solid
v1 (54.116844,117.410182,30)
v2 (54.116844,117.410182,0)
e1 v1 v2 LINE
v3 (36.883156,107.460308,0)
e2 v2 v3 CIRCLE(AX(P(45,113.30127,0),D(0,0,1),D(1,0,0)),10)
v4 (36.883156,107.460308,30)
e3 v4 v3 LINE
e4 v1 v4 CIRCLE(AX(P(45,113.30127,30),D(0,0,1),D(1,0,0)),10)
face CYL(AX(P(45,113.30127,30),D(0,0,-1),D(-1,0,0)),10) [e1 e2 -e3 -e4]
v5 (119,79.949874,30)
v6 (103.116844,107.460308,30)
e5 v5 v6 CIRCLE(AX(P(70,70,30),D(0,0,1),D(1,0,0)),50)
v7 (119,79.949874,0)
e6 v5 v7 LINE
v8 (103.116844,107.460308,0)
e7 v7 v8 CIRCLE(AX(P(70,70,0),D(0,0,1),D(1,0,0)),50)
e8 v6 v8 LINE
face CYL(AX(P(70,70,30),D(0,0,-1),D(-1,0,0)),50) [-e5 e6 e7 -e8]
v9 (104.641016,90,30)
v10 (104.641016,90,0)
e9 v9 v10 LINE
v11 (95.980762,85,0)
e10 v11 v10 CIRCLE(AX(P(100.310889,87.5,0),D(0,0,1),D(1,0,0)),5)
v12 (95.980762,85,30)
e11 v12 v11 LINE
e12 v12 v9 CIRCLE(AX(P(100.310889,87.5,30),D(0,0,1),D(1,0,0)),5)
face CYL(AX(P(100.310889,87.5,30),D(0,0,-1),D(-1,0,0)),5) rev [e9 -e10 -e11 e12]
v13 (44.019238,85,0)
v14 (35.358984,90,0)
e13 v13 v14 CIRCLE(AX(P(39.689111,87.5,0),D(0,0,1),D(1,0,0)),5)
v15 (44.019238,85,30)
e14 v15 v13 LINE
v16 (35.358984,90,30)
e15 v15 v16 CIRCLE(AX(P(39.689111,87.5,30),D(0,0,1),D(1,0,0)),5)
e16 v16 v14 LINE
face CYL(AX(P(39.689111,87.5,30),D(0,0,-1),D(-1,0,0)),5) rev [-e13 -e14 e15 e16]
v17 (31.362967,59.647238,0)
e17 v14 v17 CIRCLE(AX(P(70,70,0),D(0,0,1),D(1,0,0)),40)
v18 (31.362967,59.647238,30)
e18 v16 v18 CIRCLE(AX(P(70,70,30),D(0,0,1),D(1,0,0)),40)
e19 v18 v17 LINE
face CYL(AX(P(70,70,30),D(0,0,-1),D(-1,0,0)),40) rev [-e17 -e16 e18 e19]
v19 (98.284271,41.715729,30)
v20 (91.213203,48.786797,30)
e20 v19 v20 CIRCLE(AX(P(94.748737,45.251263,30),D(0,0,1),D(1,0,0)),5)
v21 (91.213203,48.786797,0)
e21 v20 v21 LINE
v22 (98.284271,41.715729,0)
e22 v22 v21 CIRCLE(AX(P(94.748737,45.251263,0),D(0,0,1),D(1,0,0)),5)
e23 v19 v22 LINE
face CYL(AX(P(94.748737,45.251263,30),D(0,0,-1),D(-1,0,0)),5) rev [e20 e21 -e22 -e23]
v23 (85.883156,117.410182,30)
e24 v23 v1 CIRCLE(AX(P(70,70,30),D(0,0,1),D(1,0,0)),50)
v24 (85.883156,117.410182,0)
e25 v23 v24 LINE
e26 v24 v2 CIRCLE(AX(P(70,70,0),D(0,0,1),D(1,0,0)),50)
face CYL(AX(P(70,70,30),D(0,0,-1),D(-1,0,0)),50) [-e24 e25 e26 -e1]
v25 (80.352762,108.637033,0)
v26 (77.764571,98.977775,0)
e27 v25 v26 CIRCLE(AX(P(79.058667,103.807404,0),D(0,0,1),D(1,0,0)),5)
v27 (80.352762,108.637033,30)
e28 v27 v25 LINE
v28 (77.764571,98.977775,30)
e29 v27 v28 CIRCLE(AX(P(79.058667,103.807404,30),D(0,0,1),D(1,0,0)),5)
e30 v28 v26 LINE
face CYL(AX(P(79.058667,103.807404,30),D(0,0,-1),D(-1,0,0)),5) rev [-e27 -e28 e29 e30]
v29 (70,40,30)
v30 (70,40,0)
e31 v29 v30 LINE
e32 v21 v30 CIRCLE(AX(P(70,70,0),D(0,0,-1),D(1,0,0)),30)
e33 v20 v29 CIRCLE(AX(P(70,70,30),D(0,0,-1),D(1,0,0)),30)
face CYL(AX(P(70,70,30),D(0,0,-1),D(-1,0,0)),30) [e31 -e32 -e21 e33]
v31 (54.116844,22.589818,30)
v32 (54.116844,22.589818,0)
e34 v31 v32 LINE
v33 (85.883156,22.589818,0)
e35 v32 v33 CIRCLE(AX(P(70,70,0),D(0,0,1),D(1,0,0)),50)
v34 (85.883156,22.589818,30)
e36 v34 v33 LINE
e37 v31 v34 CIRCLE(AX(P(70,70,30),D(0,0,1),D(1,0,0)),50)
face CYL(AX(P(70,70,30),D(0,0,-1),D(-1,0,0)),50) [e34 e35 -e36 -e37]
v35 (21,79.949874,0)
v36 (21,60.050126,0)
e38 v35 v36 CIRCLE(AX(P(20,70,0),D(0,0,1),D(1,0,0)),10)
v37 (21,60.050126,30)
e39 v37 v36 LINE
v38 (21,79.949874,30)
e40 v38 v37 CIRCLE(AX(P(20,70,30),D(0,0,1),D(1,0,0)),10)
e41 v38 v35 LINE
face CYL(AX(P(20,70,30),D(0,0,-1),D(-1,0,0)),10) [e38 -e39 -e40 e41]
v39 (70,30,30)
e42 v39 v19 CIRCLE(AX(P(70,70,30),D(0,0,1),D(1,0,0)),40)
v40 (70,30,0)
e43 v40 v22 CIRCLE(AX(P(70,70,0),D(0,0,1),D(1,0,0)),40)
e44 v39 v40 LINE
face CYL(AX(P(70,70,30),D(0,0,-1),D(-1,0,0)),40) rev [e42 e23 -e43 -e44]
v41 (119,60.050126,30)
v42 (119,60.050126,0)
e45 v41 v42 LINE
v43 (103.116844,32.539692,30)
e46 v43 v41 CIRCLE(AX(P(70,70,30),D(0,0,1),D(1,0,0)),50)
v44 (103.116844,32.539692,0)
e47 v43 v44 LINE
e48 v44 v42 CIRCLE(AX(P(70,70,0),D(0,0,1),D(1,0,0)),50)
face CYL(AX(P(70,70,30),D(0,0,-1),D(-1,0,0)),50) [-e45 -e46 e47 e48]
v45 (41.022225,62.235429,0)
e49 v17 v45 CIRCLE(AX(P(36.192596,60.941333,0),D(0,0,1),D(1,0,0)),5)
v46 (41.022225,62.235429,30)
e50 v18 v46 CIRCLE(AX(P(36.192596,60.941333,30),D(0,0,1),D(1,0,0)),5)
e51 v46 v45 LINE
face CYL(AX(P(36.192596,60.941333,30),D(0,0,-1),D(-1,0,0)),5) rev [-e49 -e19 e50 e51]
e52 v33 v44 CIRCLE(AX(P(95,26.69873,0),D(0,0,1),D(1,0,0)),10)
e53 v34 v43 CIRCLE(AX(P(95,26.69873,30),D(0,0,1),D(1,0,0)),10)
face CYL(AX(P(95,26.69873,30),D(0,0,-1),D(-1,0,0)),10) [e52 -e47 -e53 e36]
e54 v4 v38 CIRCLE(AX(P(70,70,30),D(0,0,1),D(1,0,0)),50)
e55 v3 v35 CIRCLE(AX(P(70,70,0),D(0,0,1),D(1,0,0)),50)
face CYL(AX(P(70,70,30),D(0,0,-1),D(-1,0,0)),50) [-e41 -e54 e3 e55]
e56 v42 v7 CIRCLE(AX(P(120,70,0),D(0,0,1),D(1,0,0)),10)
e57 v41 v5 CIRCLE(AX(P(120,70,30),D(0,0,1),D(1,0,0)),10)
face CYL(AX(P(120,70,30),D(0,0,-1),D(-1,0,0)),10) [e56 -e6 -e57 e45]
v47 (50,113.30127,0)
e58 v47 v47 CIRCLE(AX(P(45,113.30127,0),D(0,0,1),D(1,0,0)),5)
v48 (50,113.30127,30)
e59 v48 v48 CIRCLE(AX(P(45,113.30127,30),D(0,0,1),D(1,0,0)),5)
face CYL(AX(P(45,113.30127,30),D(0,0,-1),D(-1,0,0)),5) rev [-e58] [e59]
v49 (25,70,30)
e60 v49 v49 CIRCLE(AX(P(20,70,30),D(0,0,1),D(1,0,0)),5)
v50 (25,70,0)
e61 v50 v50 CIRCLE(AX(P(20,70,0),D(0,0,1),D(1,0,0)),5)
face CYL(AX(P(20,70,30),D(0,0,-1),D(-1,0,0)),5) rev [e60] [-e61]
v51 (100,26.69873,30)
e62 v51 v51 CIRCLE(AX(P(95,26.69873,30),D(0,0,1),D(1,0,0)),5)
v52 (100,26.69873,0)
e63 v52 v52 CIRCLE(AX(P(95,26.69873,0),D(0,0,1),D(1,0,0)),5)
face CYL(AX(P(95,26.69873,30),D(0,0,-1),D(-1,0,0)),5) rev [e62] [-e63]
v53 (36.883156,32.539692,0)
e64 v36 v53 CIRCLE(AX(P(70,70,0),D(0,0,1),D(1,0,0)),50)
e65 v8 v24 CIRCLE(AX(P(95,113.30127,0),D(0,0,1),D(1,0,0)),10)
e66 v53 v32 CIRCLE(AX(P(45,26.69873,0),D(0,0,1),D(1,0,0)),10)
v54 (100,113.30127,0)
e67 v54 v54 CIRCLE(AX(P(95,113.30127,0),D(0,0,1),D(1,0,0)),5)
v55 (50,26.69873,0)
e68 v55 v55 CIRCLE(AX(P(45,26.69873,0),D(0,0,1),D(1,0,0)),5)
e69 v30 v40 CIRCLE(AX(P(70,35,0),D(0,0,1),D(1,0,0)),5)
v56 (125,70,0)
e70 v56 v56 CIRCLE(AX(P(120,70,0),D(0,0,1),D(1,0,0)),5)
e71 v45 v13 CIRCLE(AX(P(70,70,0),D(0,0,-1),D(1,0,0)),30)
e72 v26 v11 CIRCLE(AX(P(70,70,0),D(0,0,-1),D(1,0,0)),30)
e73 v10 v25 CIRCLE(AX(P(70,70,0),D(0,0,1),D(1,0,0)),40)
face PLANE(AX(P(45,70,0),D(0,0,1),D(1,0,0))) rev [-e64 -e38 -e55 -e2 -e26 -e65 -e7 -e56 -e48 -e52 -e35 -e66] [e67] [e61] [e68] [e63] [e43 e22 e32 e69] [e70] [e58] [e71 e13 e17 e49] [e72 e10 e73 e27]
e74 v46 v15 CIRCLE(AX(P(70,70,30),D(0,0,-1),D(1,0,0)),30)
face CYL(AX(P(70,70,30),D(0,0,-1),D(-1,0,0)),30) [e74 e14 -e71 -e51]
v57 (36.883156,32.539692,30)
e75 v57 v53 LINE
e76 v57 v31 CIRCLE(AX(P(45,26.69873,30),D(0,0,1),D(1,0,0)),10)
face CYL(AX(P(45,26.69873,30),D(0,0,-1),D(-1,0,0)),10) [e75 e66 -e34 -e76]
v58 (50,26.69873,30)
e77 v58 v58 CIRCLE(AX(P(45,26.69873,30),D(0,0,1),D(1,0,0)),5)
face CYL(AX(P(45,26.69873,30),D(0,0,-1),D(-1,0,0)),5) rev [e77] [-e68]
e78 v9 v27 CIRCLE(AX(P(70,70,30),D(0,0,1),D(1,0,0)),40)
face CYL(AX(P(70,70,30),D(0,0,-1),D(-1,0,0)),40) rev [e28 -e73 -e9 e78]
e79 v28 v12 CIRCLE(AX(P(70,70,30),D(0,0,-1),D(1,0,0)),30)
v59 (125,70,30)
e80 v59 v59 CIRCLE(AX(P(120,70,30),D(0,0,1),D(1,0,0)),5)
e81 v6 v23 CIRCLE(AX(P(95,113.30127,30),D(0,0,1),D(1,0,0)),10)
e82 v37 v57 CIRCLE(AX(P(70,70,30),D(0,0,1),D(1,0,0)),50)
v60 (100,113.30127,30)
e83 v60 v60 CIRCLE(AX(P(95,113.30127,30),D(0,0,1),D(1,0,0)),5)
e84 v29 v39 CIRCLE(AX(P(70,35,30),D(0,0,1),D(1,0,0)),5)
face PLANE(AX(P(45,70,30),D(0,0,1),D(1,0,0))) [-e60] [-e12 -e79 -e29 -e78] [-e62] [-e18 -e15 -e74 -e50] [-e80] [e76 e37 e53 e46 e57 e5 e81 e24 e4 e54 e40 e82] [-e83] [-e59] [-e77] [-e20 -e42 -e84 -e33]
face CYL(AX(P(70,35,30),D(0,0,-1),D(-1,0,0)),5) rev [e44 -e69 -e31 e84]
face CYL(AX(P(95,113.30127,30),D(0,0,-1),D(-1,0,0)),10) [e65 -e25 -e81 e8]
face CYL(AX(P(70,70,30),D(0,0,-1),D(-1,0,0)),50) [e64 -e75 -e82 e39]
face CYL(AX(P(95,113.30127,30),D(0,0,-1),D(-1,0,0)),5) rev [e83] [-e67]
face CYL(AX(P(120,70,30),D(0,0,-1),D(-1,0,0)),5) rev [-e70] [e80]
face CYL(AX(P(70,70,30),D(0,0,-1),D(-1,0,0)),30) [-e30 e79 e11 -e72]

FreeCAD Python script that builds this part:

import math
import FreeCAD as App
import Part
import Sketcher
from FreeCAD import Vector

doc = App.newDocument("Part")
body = doc.addObject("PartDesign::Body", "Body")

# Sketch on XY plane
sketch1 = body.newObject("Sketcher::SketchObject", "Sketch")
sketch1.AttachmentSupport = (doc.getObject("XY_Plane"), [""])
sketch1.MapMode = "FlatFace"
sketch1.addGeometry(Part.ArcOfCircle(Part.Circle(Vector(70, 70, 0), Vector(0, 0, 1), 50), math.radians(-169), math.radians(-131)), False)
sketch1.addGeometry(Part.ArcOfCircle(Part.Circle(Vector(45, 26.7, 0), Vector(0, 0, 1), 10), math.radians(144), math.radians(336)), False)
sketch1.addGeometry(Part.ArcOfCircle(Part.Circle(Vector(70, 70, 0), Vector(0, 0, 1), 50), math.radians(-109), math.radians(-71)), False)
sketch1.addGeometry(Part.ArcOfCircle(Part.Circle(Vector(95, 26.7, 0), Vector(0, 0, 1), 10), math.radians(-156), math.radians(36)), False)
sketch1.addGeometry(Part.ArcOfCircle(Part.Circle(Vector(70, 70, 0), Vector(0, 0, 1), 50), math.radians(-49), math.radians(-11)), False)
sketch1.addGeometry(Part.ArcOfCircle(Part.Circle(Vector(120, 70, 0), Vector(0, 0, 1), 10), math.radians(-96), math.radians(96)), False)
sketch1.addGeometry(Part.ArcOfCircle(Part.Circle(Vector(70, 70, 0), Vector(0, 0, 1), 50), math.radians(11), math.radians(49)), False)
sketch1.addGeometry(Part.ArcOfCircle(Part.Circle(Vector(95, 113.3, 0), Vector(0, 0, 1), 10), math.radians(-36), math.radians(156)), False)
sketch1.addGeometry(Part.ArcOfCircle(Part.Circle(Vector(70, 70, 0), Vector(0, 0, 1), 50), math.radians(71), math.radians(109)), False)
sketch1.addGeometry(Part.ArcOfCircle(Part.Circle(Vector(45, 113.3, 0), Vector(0, 0, 1), 10), math.radians(24), math.radians(216)), False)
sketch1.addGeometry(Part.ArcOfCircle(Part.Circle(Vector(70, 70, 0), Vector(0, 0, 1), 50), math.radians(131), math.radians(169)), False)
sketch1.addGeometry(Part.ArcOfCircle(Part.Circle(Vector(20, 70, 0), Vector(0, 0, 1), 10), math.radians(84), math.radians(276)), False)
sketch1.addGeometry(Part.Circle(Vector(45, 26.7, 0), Vector(0, 0, 1), 5), False)
sketch1.addGeometry(Part.Circle(Vector(95, 26.7, 0), Vector(0, 0, 1), 5), False)
sketch1.addGeometry(Part.ArcOfCircle(Part.Circle(Vector(70, 70, 0), Vector(0, 0, 1), 40), math.radians(-90), math.radians(-45)), False)
sketch1.addGeometry(Part.ArcOfCircle(Part.Circle(Vector(70, 35, 0), Vector(0, 0, 1), 5), math.radians(90), math.radians(270)), False)
sketch1.addGeometry(Part.ArcOfCircle(Part.Circle(Vector(70, 70, 0), Vector(0, 0, 1), 30), math.radians(-90), math.radians(-45)), False)
sketch1.addGeometry(Part.ArcOfCircle(Part.Circle(Vector(94.7, 45.3, 0), Vector(0, 0, 1), 5), math.radians(-45), math.radians(135)), False)
sketch1.addGeometry(Part.Circle(Vector(20, 70, 0), Vector(0, 0, 1), 5), False)
sketch1.addGeometry(Part.ArcOfCircle(Part.Circle(Vector(70, 70, 0), Vector(0, 0, 1), 40), math.radians(150), math.radians(195)), False)
sketch1.addGeometry(Part.ArcOfCircle(Part.Circle(Vector(39.7, 87.5, 0), Vector(0, 0, 1), 5), math.radians(-30), math.radians(150)), False)
sketch1.addGeometry(Part.ArcOfCircle(Part.Circle(Vector(70, 70, 0), Vector(0, 0, 1), 30), math.radians(150), math.radians(195)), False)
sketch1.addGeometry(Part.ArcOfCircle(Part.Circle(Vector(36.2, 60.9, 0), Vector(0, 0, 1), 5), math.radians(-165), math.radians(15)), False)
sketch1.addGeometry(Part.Circle(Vector(45, 113.3, 0), Vector(0, 0, 1), 5), False)
sketch1.addGeometry(Part.Circle(Vector(120, 70, 0), Vector(0, 0, 1), 5), False)
sketch1.addGeometry(Part.ArcOfCircle(Part.Circle(Vector(70, 70, 0), Vector(0, 0, 1), 40), math.radians(30), math.radians(75)), False)
sketch1.addGeometry(Part.ArcOfCircle(Part.Circle(Vector(100.3, 87.5, 0), Vector(0, 0, 1), 5), math.radians(-150), math.radians(30)), False)
sketch1.addGeometry(Part.ArcOfCircle(Part.Circle(Vector(70, 70, 0), Vector(0, 0, 1), 30), math.radians(30), math.radians(75)), False)
sketch1.addGeometry(Part.ArcOfCircle(Part.Circle(Vector(79.1, 103.8, 0), Vector(0, 0, 1), 5), math.radians(75), math.radians(255)), False)
sketch1.addGeometry(Part.Circle(Vector(95, 113.3, 0), Vector(0, 0, 1), 5), False)
sketch1.addConstraint(Sketcher.Constraint("Coincident", 0, 2, 1, 1))
sketch1.addConstraint(Sketcher.Constraint("Coincident", 1, 2, 2, 1))
sketch1.addConstraint(Sketcher.Constraint("Coincident", 2, 2, 3, 1))
sketch1.addConstraint(Sketcher.Constraint("Coincident", 3, 2, 4, 1))
sketch1.addConstraint(Sketcher.Constraint("Coincident", 4, 2, 5, 1))
sketch1.addConstraint(Sketcher.Constraint("Coincident", 5, 2, 6, 1))
sketch1.addConstraint(Sketcher.Constraint("Coincident", 6, 2, 7, 1))
sketch1.addConstraint(Sketcher.Constraint("Coincident", 7, 2, 8, 1))
sketch1.addConstraint(Sketcher.Constraint("Coincident", 8, 2, 9, 1))
sketch1.addConstraint(Sketcher.Constraint("Coincident", 9, 2, 10, 1))
sketch1.addConstraint(Sketcher.Constraint("Coincident", 10, 2, 11, 1))
sketch1.addConstraint(Sketcher.Constraint("Coincident", 11, 2, 0, 1))
sketch1.addConstraint(Sketcher.Constraint("Tangent", 14, 1, 15, 2))
sketch1.addConstraint(Sketcher.Constraint("Tangent", 15, 1, 16, 1))
sketch1.addConstraint(Sketcher.Constraint("Tangent", 16, 2, 17, 2))
sketch1.addConstraint(Sketcher.Constraint("Tangent", 17, 1, 14, 2))
sketch1.addConstraint(Sketcher.Constraint("Tangent", 19, 1, 20, 2))
sketch1.addConstraint(Sketcher.Constraint("Tangent", 20, 1, 21, 1))
sketch1.addConstraint(Sketcher.Constraint("Tangent", 21, 2, 22, 2))
sketch1.addConstraint(Sketcher.Constraint("Tangent", 22, 1, 19, 2))
sketch1.addConstraint(Sketcher.Constraint("Tangent", 25, 1, 26, 2))
sketch1.addConstraint(Sketcher.Constraint("Tangent", 26, 1, 27, 1))
sketch1.addConstraint(Sketcher.Constraint("Tangent", 27, 2, 28, 2))
sketch1.addConstraint(Sketcher.Constraint("Tangent", 28, 1, 25, 2))
sketch1.addConstraint(Sketcher.Constraint("Coincident", 2, 3, 0, 3))
sketch1.addConstraint(Sketcher.Constraint("Coincident", 4, 3, 0, 3))
sketch1.addConstraint(Sketcher.Constraint("Coincident", 6, 3, 0, 3))
sketch1.addConstraint(Sketcher.Constraint("Coincident", 8, 3, 0, 3))
sketch1.addConstraint(Sketcher.Constraint("Coincident", 10, 3, 0, 3))
sketch1.addConstraint(Sketcher.Constraint("Coincident", 12, 3, 1, 3))
sketch1.addConstraint(Sketcher.Constraint("Coincident", 13, 3, 3, 3))
sketch1.addConstraint(Sketcher.Constraint("Coincident", 14, 3, 0, 3))
sketch1.addConstraint(Sketcher.Constraint("Coincident", 16, 3, 0, 3))
sketch1.addConstraint(Sketcher.Constraint("Coincident", 18, 3, 11, 3))
sketch1.addConstraint(Sketcher.Constraint("Coincident", 19, 3, 0, 3))
sketch1.addConstraint(Sketcher.Constraint("Coincident", 21, 3, 0, 3))
sketch1.addConstraint(Sketcher.Constraint("Coincident", 23, 3, 9, 3))
sketch1.addConstraint(Sketcher.Constraint("Coincident", 24, 3, 5, 3))
sketch1.addConstraint(Sketcher.Constraint("Coincident", 25, 3, 0, 3))
sketch1.addConstraint(Sketcher.Constraint("Coincident", 27, 3, 0, 3))
sketch1.addConstraint(Sketcher.Constraint("Coincident", 29, 3, 7, 3))
sketch1.addConstraint(Sketcher.Constraint("Equal", 0, 2))
sketch1.addConstraint(Sketcher.Constraint("Equal", 1, 3))
sketch1.addConstraint(Sketcher.Constraint("Equal", 2, 4))
sketch1.addConstraint(Sketcher.Constraint("Equal", 3, 5))
sketch1.addConstraint(Sketcher.Constraint("Equal", 4, 6))
sketch1.addConstraint(Sketcher.Constraint("Equal", 5, 7))
sketch1.addConstraint(Sketcher.Constraint("Equal", 6, 8))
sketch1.addConstraint(Sketcher.Constraint("Equal", 7, 9))
sketch1.addConstraint(Sketcher.Constraint("Equal", 8, 10))
sketch1.addConstraint(Sketcher.Constraint("Equal", 9, 11))
sketch1.addConstraint(Sketcher.Constraint("Equal", 12, 13))
sketch1.addConstraint(Sketcher.Constraint("Equal", 13, 15))
sketch1.addConstraint(Sketcher.Constraint("Equal", 17, 18))
sketch1.addConstraint(Sketcher.Constraint("Equal", 14, 19))
sketch1.addConstraint(Sketcher.Constraint("Equal", 18, 20))
sketch1.addConstraint(Sketcher.Constraint("Equal", 22, 23))
sketch1.addConstraint(Sketcher.Constraint("Equal", 23, 24))
sketch1.addConstraint(Sketcher.Constraint("Equal", 19, 25))
sketch1.addConstraint(Sketcher.Constraint("Equal", 24, 26))
sketch1.addConstraint(Sketcher.Constraint("Equal", 28, 29))
sketch1.addConstraint(Sketcher.Constraint("Horizontal", 1, 3, 3, 3))
sketch1.addConstraint(Sketcher.Constraint("Horizontal", 4, 3, 5, 3))
sketch1.addConstraint(Sketcher.Constraint("Horizontal", 7, 3, 9, 3))
sketch1.addConstraint(Sketcher.Constraint("Horizontal", 10, 3, 11, 3))
sketch1.addConstraint(Sketcher.Constraint("Horizontal", 20, 3, 26, 3))
sketch1.addConstraint(Sketcher.Constraint("Horizontal", 1, 2, 2, 2))
sketch1.addConstraint(Sketcher.Constraint("Horizontal", 7, 2, 8, 2))
sketch1.addConstraint(Sketcher.Constraint("Horizontal", 5, 2, 10, 2))
sketch1.addConstraint(Sketcher.Constraint("Vertical", 3, 3, 7, 3))
sketch1.addConstraint(Sketcher.Constraint("Vertical", 14, 3, 15, 3))
sketch1.addConstraint(Sketcher.Constraint("Vertical", 3, 2, 6, 2))
sketch1.addConstraint(Sketcher.Constraint("Diameter", 12, 10.0))
sketch1.addConstraint(Sketcher.Constraint("Radius", 0, 50.0))
sketch1.addConstraint(Sketcher.Constraint("Radius", 1, 10.0))
sketch1.addConstraint(Sketcher.Constraint("Radius", 14, 40.0))
sketch1.addConstraint(Sketcher.Constraint("DistanceX", -1, 1, 0, 3, 70.0))
sketch1.addConstraint(Sketcher.Constraint("DistanceY", -1, 1, 0, 3, 70.0))
sketch1.addConstraint(Sketcher.Constraint("DistanceX", -1, 1, 1, 3, 45.0))
sketch1.addConstraint(Sketcher.Constraint("DistanceX", -1, 1, 5, 3, 120.0))
sketch1.addConstraint(Sketcher.Constraint("DistanceY", -1, 1, 19, 1, 90.0))
sketch1.addConstraint(Sketcher.Constraint("DistanceY", 3, 3, 17, 1, 15.016999))
sketch1.addConstraint(Sketcher.Constraint("DistanceY", -1, 1, 1, 3, 26.69873))
sketch1.addConstraint(Sketcher.Constraint("DistanceY", -1, 1, 21, 2, 62.235429))
sketch1.addConstraint(Sketcher.Constraint("DistanceX", -1, 1, 27, 2, 77.764571))
pad1 = body.newObject("PartDesign::Pad", "Pad")
pad1.Profile = sketch1
pad1.Length = 30

doc.recompute()
